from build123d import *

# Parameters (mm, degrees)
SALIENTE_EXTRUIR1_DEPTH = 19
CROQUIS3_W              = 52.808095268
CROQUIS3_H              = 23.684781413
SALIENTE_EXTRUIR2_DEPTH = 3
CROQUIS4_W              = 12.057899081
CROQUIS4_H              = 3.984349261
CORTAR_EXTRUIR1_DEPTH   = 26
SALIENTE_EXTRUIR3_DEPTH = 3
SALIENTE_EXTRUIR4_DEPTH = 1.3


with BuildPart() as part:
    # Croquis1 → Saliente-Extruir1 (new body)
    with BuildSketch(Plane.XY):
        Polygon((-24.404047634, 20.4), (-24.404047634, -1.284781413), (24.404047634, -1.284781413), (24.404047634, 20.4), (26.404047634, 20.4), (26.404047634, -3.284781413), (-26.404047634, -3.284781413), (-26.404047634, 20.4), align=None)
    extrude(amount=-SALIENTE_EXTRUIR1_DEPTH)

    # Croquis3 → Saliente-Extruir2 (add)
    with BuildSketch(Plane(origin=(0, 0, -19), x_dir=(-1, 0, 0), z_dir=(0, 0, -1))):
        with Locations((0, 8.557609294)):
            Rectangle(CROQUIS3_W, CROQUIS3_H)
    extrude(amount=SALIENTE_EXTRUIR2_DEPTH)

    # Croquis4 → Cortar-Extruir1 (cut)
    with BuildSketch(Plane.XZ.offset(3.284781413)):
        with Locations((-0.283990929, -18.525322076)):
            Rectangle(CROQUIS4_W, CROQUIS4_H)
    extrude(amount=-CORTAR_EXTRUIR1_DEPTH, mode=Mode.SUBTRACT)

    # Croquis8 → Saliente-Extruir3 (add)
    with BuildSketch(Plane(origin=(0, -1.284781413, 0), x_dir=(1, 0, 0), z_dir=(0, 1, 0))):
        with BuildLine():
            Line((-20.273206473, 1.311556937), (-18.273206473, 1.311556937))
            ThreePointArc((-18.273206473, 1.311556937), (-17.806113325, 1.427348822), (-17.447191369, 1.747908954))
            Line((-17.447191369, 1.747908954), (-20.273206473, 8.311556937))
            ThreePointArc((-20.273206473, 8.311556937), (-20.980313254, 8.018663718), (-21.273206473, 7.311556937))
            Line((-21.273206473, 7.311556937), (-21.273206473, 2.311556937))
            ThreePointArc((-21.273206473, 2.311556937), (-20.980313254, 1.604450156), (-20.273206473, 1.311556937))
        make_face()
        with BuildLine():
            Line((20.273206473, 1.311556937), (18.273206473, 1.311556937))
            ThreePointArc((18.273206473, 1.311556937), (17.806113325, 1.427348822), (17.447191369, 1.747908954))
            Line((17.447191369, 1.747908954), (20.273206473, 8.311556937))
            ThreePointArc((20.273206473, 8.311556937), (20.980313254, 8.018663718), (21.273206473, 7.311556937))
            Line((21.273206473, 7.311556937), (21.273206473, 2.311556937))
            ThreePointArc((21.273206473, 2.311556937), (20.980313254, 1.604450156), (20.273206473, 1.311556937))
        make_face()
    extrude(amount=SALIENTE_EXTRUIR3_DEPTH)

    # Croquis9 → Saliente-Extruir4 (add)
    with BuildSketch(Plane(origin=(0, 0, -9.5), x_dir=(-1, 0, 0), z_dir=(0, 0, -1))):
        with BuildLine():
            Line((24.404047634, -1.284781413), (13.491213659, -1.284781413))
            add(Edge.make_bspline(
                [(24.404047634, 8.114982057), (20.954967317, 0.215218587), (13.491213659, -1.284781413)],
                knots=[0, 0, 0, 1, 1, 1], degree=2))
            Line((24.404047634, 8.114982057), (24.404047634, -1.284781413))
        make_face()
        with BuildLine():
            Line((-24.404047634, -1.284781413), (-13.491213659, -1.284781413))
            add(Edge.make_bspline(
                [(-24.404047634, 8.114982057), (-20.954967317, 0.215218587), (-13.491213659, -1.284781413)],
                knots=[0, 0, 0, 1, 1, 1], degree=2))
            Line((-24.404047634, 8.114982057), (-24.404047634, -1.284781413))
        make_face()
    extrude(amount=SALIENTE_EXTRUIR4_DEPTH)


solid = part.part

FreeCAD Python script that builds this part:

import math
import FreeCAD as App
import Part
import Sketcher

V = App.Vector
Q = App.Units.Quantity


def add_polygon(sketch, points):
    """Adds a closed chain of lines whose ends are joined by coincident constraints."""
    first, n = sketch.GeometryCount, len(points)
    for a, b in zip(points, points[1:] + points[:1]):
        sketch.addGeometry(Part.LineSegment(App.Vector(*a, 0), App.Vector(*b, 0)), False)
    for i in range(n):
        sketch.addConstraint(Sketcher.Constraint("Coincident", first + i, 2, first + (i + 1) % n, 1))

doc = App.newDocument("Part")
body = doc.addObject("PartDesign::Body", "Body")

sketch1 = doc.addObject("Sketcher::SketchObject", "Sketch")
body.addObject(sketch1)
sketch1.AttachmentSupport = (doc.XY_Plane, [""])
sketch1.MapMode = "FlatFace"
add_polygon(sketch1, [(-24.404048, -1.284781), (-24.404048, 20.4), (-26.404048, 20.4), (-26.404048, -3.284781), (26.404048, -3.284781), (26.404048, 20.4), (24.404048, 20.4), (24.404048, -1.284781)])
sketch1.addConstraint([
    Sketcher.Constraint("Vertical", 0),
    Sketcher.Constraint("Horizontal", 1),
    Sketcher.Constraint("Vertical", 2),
    Sketcher.Constraint("Horizontal", 3),
    Sketcher.Constraint("Vertical", 4),
    Sketcher.Constraint("Horizontal", 5),
    Sketcher.Constraint("Vertical", 6),
    Sketcher.Constraint("Horizontal", 7),
    Sketcher.Constraint("Symmetric", 1, 2, 4, 2, -2),
    Sketcher.Constraint("Equal", 1, 5),
    Sketcher.Constraint("DistanceX", 1, 2, 1, 1, Q("2 mm")),
    Sketcher.Constraint("DistanceY", 3, 2, 6, 2, Q("2 mm")),
    Sketcher.Constraint("DistanceY", -1, 1, 0, 2, Q("20.4 mm")),
    Sketcher.Constraint("DistanceY", 0, 1, 0, 2, Q("21.684781 mm")),
    Sketcher.Constraint("DistanceX", 3, 1, 3, 2, Q("52.808095 mm")),
])
pad1 = doc.addObject("PartDesign::Pad", "Pad")
body.addObject(pad1)
pad1.Profile = sketch1
pad1.Length = 19
pad1.Reversed = True

sketch2 = doc.addObject("Sketcher::SketchObject", "Sketch001")
body.addObject(sketch2)
sketch2.AttachmentSupport = (doc.XY_Plane, [""])
sketch2.MapMode = "FlatFace"
sketch2.AttachmentOffset = App.Placement(V(0, 0, -19), App.Rotation())
add_polygon(sketch2, [(26.404048, 20.4), (26.404048, -3.284781), (-26.404048, -3.284781), (-26.404048, 20.4)])
sketch2.addConstraint([
    Sketcher.Constraint("Vertical", 0),
    Sketcher.Constraint("Horizontal", 1),
    Sketcher.Constraint("Vertical", 2),
    Sketcher.Constraint("Horizontal", 3),
    Sketcher.Constraint("DistanceY", -1, 1, 2, 2, Q("20.4 mm")),
    Sketcher.Constraint("DistanceY", 0, 2, 0, 1, Q("23.684781 mm")),
    Sketcher.Constraint("DistanceX", 1, 2, 1, 1, Q("52.808095 mm")),
    Sketcher.Constraint("DistanceX", -1, 1, 0, 2, Q("26.404048 mm")),
])
pad2 = doc.addObject("PartDesign::Pad", "Pad001")
body.addObject(pad2)
pad2.Profile = sketch2
pad2.Length = 3
pad2.Reversed = True

sketch3 = doc.addObject("Sketcher::SketchObject", "Sketch002")
body.addObject(sketch3)
sketch3.AttachmentSupport = (doc.XZ_Plane, [""])
sketch3.MapMode = "FlatFace"
sketch3.AttachmentOffset = App.Placement(V(0, 0, 3.284781), App.Rotation())
add_polygon(sketch3, [(-6.31294, -16.533147), (-6.31294, -20.517497), (5.744959, -20.517497), (5.744959, -16.533147)])
sketch3.addConstraint([
    Sketcher.Constraint("Vertical", 0),
    Sketcher.Constraint("Horizontal", 1),
    Sketcher.Constraint("Vertical", 2),
    Sketcher.Constraint("Horizontal", 3),
    Sketcher.Constraint("DistanceX", 1, 1, 1, 2, Q("12.057899 mm")),
    Sketcher.Constraint("DistanceY", 0, 2, 0, 1, Q("3.984349 mm")),
    Sketcher.Constraint("DistanceX", 0, 2, -1, 1, Q("6.31294 mm")),
    Sketcher.Constraint("DistanceY", 0, 2, -1, 1, Q("20.517497 mm")),
])
pocket1 = doc.addObject("PartDesign::Pocket", "Pocket")
body.addObject(pocket1)
pocket1.Profile = sketch3
pocket1.Length = 26

sketch4 = doc.addObject("Sketcher::SketchObject", "Sketch003")
body.addObject(sketch4)
sketch4.AttachmentSupport = (doc.XZ_Plane, [""])
sketch4.MapMode = "FlatFace"
sketch4.AttachmentOffset = App.Placement(V(0, 0, 1.284781), App.Rotation())
sketch4.addGeometry([
    Part.LineSegment(V(-20.273206, -1.311557, 0), V(-18.273206, -1.311557, 0)),
    Part.ArcOfCircle(Part.Circle(V(-18.273206, -2.311557, 0), V(0, 0, 1), 1), math.radians(34.308458), math.radians(90)),
    Part.LineSegment(V(-17.447191, -1.747909, 0), V(-20.273206, -8.311557, 0)),
    Part.ArcOfCircle(Part.Circle(V(-20.273206, -7.311557, 0), V(0, 0, 1), 1), math.radians(-180), math.radians(-90)),
    Part.LineSegment(V(-21.273206, -7.311557, 0), V(-21.273206, -2.311557, 0)),
    Part.ArcOfCircle(Part.Circle(V(-20.273206, -2.311557, 0), V(0, 0, 1), 1), math.radians(90), math.radians(180)),
    Part.LineSegment(V(18.273206, -1.311557, 0), V(20.273206, -1.311557, 0)),
    Part.ArcOfCircle(Part.Circle(V(20.273206, -2.311557, 0), V(0, 0, 1), 1), math.radians(0), math.radians(90)),
    Part.LineSegment(V(21.273206, -2.311557, 0), V(21.273206, -7.311557, 0)),
    Part.ArcOfCircle(Part.Circle(V(20.273206, -7.311557, 0), V(0, 0, 1), 1), math.radians(-90), math.radians(0)),
    Part.LineSegment(V(20.273206, -8.311557, 0), V(17.447191, -1.747909, 0)),
    Part.ArcOfCircle(Part.Circle(V(18.273206, -2.311557, 0), V(0, 0, 1), 1), math.radians(90), math.radians(145.691542)),
], False)
sketch4.addConstraint([
    Sketcher.Constraint("Tangent", 0, 2, 1, 2),
    Sketcher.Constraint("Coincident", 1, 1, 2, 1),
    Sketcher.Constraint("Coincident", 2, 2, 3, 2),
    Sketcher.Constraint("Tangent", 3, 1, 4, 1),
    Sketcher.Constraint("Tangent", 4, 2, 5, 2),
    Sketcher.Constraint("Tangent", 5, 1, 0, 1),
    Sketcher.Constraint("Tangent", 6, 2, 7, 2),
    Sketcher.Constraint("Tangent", 7, 1, 8, 1),
    Sketcher.Constraint("Tangent", 8, 2, 9, 2),
    Sketcher.Constraint("Coincident", 9, 1, 10, 1),
    Sketcher.Constraint("Coincident", 10, 2, 11, 2),
    Sketcher.Constraint("Tangent", 11, 1, 6, 1),
    Sketcher.Constraint("Horizontal", 0),
    Sketcher.Constraint("Vertical", 4),
    Sketcher.Constraint("Horizontal", 6),
    Sketcher.Constraint("Vertical", 8),
    Sketcher.Constraint("Equal", 1, 3),
    Sketcher.Constraint("Equal", 3, 5),
    Sketcher.Constraint("Equal", 5, 7),
    Sketcher.Constraint("Equal", 7, 9),
    Sketcher.Constraint("Equal", 9, 11),
    Sketcher.Constraint("Symmetric", 5, 3, 7, 3, -2),
    Sketcher.Constraint("Symmetric", 2, 2, 9, 1, -2),
    Sketcher.Constraint("Symmetric", 1, 1, 10, 2, -2),
    Sketcher.Constraint("Vertical", 5, 3, 2, 2),
    Sketcher.Constraint("Radius", 1, Q("1 mm")),
    Sketcher.Constraint("DistanceX", 0, 1, 0, 2, Q("2 mm")),
    Sketcher.Constraint("DistanceY", 4, 1, 4, 2, Q("5 mm")),
    Sketcher.Constraint("DistanceX", 1, 1, -1, 1, Q("17.447191 mm")),
    Sketcher.Constraint("DistanceY", 1, 1, -1, 1, Q("1.747909 mm")),
    Sketcher.Constraint("Distance", 2, Q("7.146176 mm")),
])
pad3 = doc.addObject("PartDesign::Pad", "Pad002")
body.addObject(pad3)
pad3.Profile = sketch4
pad3.Length = 3
pad3.Reversed = True

sketch5 = doc.addObject("Sketcher::SketchObject", "Sketch004")
body.addObject(sketch5)
sketch5.AttachmentSupport = (doc.XY_Plane, [""])
sketch5.MapMode = "FlatFace"
sketch5.AttachmentOffset = App.Placement(V(0, 0, -9.5), App.Rotation())
sketch5.addGeometry([
    Part.LineSegment(V(-13.491214, -1.284781, 0), V(-24.404048, -1.284781, 0)),
    Part.LineSegment(V(-24.404048, -1.284781, 0), V(-24.404048, 8.114982, 0)),
    Part.BSplineCurve([V(-24.404048, 8.114982, 0), V(-20.954967, 0.215219, 0), V(-13.491214, -1.284781, 0)], [3, 3], [0, 1], False, 2, [1, 1, 1], False),
    Part.LineSegment(V(24.404048, -1.284781, 0), V(13.491214, -1.284781, 0)),
    Part.BSplineCurve([V(24.404048, 8.114982, 0), V(20.954967, 0.215219, 0), V(13.491214, -1.284781, 0)], [3, 3], [0, 1], False, 2, [1, 1, 1], False),
    Part.LineSegment(V(24.404048, 8.114982, 0), V(24.404048, -1.284781, 0)),
], False)
sketch5.addConstraint([
    Sketcher.Constraint("Block", 2),
    Sketcher.Constraint("Block", 4),
    Sketcher.Constraint("Coincident", 0, 2, 1, 1),
    Sketcher.Constraint("Coincident", 1, 2, 2, 1),
    Sketcher.Constraint("Coincident", 2, 2, 0, 1),
    Sketcher.Constraint("Coincident", 3, 2, 4, 2),
    Sketcher.Constraint("Coincident", 4, 1, 5, 1),
    Sketcher.Constraint("Coincident", 5, 2, 3, 1),
    Sketcher.Constraint("Horizontal", 0),
    Sketcher.Constraint("Vertical", 1),
    Sketcher.Constraint("Horizontal", 3),
    Sketcher.Constraint("Vertical", 5),
])
pad4 = doc.addObject("PartDesign::Pad", "Pad003")
body.addObject(pad4)
pad4.Profile = sketch5
pad4.Length = 1.3
pad4.Reversed = True

doc.recompute()
